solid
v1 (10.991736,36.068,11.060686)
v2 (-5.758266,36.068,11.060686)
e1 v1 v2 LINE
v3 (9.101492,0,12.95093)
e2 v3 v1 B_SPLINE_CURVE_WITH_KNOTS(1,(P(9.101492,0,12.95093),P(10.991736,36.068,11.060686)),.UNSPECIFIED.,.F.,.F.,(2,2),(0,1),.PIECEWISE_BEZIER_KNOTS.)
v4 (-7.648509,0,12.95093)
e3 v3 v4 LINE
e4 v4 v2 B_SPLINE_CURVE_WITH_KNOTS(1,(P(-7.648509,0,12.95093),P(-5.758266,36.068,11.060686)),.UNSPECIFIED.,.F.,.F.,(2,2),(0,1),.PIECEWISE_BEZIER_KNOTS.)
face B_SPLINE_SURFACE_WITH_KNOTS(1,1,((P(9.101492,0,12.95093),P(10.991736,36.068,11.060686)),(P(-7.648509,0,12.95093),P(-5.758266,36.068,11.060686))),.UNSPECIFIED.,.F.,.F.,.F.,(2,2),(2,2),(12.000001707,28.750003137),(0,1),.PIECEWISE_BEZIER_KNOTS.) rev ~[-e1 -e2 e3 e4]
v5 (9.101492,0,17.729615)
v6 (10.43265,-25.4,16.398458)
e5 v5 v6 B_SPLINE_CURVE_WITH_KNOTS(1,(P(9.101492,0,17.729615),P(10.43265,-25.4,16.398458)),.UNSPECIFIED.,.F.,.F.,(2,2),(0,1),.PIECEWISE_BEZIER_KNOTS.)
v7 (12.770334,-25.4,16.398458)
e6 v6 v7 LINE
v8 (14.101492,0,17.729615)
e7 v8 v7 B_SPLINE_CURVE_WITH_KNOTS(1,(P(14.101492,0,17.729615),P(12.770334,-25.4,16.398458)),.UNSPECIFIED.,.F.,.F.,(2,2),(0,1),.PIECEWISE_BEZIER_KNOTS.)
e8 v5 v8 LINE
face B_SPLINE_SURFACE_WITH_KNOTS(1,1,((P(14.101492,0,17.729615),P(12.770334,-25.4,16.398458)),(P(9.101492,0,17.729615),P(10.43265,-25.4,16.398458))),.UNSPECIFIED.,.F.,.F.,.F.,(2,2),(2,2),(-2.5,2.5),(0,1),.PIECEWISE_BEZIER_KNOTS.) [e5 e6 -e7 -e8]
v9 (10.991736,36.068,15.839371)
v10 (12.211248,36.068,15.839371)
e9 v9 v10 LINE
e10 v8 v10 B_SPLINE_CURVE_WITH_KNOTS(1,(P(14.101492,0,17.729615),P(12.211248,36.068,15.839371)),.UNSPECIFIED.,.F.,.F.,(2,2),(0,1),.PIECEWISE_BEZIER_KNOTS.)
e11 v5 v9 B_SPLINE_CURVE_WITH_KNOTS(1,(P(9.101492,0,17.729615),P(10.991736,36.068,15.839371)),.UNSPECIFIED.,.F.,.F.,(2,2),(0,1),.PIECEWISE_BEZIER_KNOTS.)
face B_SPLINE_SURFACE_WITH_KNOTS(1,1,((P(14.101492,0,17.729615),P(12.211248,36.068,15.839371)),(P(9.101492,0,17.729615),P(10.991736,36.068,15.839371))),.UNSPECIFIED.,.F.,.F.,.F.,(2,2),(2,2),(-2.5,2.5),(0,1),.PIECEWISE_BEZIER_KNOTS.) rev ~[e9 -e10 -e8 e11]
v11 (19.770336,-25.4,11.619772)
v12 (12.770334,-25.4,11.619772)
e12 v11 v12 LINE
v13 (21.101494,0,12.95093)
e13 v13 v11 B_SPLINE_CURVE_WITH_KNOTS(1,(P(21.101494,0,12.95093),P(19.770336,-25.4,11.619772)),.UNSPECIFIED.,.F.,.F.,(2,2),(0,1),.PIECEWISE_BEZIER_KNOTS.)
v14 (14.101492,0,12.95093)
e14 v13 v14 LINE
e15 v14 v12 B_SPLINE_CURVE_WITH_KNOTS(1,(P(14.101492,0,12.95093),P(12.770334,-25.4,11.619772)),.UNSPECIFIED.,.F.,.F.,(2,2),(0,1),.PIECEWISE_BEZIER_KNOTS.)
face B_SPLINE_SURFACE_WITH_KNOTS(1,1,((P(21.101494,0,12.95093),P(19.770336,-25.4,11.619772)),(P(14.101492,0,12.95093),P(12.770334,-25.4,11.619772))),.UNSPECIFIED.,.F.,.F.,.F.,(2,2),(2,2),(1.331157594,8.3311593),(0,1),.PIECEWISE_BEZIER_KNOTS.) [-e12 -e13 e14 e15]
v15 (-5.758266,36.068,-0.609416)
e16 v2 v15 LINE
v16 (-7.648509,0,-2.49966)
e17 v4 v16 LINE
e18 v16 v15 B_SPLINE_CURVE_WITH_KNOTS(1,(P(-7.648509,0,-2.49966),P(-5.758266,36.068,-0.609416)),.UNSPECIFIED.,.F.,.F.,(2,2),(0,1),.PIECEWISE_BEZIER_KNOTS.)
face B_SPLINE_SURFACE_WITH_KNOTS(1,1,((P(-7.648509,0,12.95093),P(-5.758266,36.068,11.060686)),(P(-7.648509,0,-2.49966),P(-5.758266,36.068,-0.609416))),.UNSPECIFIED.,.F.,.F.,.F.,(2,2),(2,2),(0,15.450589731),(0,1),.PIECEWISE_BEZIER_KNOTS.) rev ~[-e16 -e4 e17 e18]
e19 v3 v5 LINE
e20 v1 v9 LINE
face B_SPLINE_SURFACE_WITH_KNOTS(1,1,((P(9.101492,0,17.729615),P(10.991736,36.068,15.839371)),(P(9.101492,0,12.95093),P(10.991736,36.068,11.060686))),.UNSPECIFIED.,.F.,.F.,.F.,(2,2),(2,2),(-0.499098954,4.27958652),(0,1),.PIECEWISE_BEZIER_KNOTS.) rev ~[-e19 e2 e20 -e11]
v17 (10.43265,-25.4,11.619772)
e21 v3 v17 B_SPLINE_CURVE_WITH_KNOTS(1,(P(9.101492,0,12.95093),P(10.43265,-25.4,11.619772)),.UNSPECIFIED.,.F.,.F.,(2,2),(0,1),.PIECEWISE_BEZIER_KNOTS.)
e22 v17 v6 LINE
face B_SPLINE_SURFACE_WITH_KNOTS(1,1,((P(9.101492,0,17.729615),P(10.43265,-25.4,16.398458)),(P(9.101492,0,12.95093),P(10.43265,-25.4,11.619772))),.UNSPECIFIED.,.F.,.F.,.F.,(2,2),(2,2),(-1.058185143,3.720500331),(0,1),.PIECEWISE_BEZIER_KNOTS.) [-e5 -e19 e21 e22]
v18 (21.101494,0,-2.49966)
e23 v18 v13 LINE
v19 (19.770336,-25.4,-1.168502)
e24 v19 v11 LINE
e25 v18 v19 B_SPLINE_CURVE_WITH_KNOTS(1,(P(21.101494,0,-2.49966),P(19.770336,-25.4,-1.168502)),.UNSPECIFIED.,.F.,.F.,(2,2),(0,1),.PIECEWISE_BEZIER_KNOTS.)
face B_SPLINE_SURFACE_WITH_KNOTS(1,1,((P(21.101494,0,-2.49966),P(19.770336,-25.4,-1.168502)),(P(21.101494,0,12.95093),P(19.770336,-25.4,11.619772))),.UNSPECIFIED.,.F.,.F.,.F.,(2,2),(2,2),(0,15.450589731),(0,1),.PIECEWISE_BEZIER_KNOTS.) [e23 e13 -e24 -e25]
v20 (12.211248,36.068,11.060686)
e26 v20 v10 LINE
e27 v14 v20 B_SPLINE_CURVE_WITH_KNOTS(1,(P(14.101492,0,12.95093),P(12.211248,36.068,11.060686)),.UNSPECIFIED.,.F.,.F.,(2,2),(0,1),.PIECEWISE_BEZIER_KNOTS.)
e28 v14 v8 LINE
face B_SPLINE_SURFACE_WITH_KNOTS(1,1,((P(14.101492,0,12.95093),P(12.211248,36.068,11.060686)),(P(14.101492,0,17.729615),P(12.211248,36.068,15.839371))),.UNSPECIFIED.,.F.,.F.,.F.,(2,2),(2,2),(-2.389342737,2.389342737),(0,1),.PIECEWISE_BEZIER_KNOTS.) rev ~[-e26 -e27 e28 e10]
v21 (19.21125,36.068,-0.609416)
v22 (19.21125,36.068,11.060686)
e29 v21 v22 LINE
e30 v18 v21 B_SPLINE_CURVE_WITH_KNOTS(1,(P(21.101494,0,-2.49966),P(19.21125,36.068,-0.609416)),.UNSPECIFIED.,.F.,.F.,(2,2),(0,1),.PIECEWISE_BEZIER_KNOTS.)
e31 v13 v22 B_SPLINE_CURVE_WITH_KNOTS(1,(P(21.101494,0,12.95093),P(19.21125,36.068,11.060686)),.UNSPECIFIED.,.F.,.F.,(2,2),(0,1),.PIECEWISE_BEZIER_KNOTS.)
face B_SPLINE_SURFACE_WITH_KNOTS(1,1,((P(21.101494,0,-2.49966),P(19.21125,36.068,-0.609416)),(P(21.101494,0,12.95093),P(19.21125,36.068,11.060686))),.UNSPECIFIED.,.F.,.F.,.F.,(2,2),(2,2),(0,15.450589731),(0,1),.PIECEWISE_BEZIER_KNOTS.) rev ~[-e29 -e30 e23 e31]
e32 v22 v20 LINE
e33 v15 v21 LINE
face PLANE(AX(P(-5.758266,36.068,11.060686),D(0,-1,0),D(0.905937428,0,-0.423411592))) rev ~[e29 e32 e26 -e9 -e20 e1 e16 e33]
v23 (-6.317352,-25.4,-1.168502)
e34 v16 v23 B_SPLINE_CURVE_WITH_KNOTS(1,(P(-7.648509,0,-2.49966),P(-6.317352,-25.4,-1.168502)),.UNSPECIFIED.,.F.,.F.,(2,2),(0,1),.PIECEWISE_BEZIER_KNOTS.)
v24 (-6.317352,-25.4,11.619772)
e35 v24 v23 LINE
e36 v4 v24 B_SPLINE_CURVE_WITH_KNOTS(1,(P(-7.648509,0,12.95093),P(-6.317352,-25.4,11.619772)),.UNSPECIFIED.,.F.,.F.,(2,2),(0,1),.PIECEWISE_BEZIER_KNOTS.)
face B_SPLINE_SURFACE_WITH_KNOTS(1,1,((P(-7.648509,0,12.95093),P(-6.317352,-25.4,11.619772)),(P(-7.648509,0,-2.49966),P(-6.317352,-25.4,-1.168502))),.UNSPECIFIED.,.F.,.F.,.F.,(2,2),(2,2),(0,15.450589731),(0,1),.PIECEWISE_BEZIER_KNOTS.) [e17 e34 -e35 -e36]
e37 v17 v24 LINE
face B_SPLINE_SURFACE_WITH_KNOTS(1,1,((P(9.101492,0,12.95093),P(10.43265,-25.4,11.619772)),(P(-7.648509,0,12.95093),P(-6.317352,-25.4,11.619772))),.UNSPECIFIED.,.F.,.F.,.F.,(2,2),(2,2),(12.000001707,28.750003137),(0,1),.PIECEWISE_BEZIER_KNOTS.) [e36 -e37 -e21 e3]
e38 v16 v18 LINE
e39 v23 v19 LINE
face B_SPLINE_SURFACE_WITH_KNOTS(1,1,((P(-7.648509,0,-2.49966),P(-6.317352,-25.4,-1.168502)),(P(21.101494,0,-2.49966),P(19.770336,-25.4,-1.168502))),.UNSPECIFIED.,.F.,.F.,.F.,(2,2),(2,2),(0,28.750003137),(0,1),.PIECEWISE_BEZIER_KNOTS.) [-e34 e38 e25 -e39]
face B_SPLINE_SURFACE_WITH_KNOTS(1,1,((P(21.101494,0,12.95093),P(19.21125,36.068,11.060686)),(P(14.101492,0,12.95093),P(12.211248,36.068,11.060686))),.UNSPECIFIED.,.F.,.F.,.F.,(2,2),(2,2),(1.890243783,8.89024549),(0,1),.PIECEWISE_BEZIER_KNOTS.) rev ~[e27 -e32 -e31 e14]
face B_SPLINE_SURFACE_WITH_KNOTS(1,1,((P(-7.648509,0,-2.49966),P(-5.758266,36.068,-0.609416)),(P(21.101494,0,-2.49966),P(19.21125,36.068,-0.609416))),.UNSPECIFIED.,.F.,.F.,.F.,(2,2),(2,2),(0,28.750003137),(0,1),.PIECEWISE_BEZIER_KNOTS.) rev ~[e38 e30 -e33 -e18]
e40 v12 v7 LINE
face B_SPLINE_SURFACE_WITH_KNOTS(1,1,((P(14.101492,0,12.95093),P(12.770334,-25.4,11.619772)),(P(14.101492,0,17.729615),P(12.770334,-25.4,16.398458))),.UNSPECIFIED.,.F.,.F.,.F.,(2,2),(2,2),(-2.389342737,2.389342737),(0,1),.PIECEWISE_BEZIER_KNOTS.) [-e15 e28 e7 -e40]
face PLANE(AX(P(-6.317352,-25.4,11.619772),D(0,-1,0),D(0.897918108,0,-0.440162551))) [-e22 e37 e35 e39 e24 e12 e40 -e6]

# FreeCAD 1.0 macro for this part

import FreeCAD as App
import Part
import Sketcher
from FreeCAD import Vector
Q = App.Units.Quantity

doc = App.newDocument("Part")
body = doc.addObject("PartDesign::Body", "Body")

# Sketch on XZ plane
sketch1 = body.newObject("Sketcher::SketchObject", "Sketch")
sketch1.AttachmentSupport = (doc.getObject("XZ_Plane"), [""])
sketch1.MapMode = "FlatFace"
sketch1.addGeometry([
    Part.LineSegment(Vector(-7.648509, 12.95093, 0), Vector(-7.648509, -2.49966, 0)),  # 0
    Part.LineSegment(Vector(-7.648509, -2.49966, 0), Vector(21.101494, -2.49966, 0)),  # 1
    Part.LineSegment(Vector(21.101494, -2.49966, 0), Vector(21.101494, 12.95093, 0)),  # 2
    Part.LineSegment(Vector(21.101494, 12.95093, 0), Vector(14.101492, 12.95093, 0)),  # 3
    Part.LineSegment(Vector(14.101492, 12.95093, 0), Vector(14.101492, 17.729615, 0)),  # 4
    Part.LineSegment(Vector(14.101492, 17.729615, 0), Vector(9.101492, 17.729615, 0)),  # 5
    Part.LineSegment(Vector(9.101492, 17.729615, 0), Vector(9.101492, 12.95093, 0)),  # 6
    Part.LineSegment(Vector(9.101492, 12.95093, 0), Vector(-7.648509, 12.95093, 0)),  # 7
], False)
sketch1.addConstraint([
    Sketcher.Constraint("Coincident", 0, 2, 1, 1),
    Sketcher.Constraint("Coincident", 1, 2, 2, 1),
    Sketcher.Constraint("Coincident", 2, 2, 3, 1),
    Sketcher.Constraint("Coincident", 3, 2, 4, 1),
    Sketcher.Constraint("Coincident", 4, 2, 5, 1),
    Sketcher.Constraint("Coincident", 5, 2, 6, 1),
    Sketcher.Constraint("Coincident", 6, 2, 7, 1),
    Sketcher.Constraint("Coincident", 7, 2, 0, 1),
    Sketcher.Constraint("Vertical", 0),
    Sketcher.Constraint("Horizontal", 1),
    Sketcher.Constraint("Vertical", 2),
    Sketcher.Constraint("Horizontal", 3),
    Sketcher.Constraint("Vertical", 4),
    Sketcher.Constraint("Horizontal", 5),
    Sketcher.Constraint("Vertical", 6),
    Sketcher.Constraint("Horizontal", 7),
    Sketcher.Constraint("Horizontal", 3, 2, 6, 2),
    Sketcher.Constraint("DistanceX", 3, 2, 3, 1, Q("7.000002 mm")),
    Sketcher.Constraint("DistanceX", 5, 2, 5, 1, Q("5 mm")),
    Sketcher.Constraint("DistanceX", 7, 2, 7, 1, Q("16.750001 mm")),
    Sketcher.Constraint("DistanceY", 0, 2, 0, 1, Q("15.45059 mm")),
    Sketcher.Constraint("DistanceY", 4, 1, 4, 2, Q("4.778685 mm")),
    Sketcher.Constraint("DistanceX", 0, 2, -1, 1, Q("7.648509 mm")),
    Sketcher.Constraint("DistanceY", 0, 2, -1, 1, Q("2.49966 mm")),
])
pad1 = body.newObject("PartDesign::Pad", "Pad")
pad1.Profile = sketch1
pad1.Length = Q("1.42 in")
pad1.Reversed = True
pad1.TaperAngle = -3
pad2 = body.newObject("PartDesign::Pad", "Pad001")
pad2.Profile = sketch1
pad2.Length = Q("1 in")
pad2.TaperAngle = -3

doc.recompute()
